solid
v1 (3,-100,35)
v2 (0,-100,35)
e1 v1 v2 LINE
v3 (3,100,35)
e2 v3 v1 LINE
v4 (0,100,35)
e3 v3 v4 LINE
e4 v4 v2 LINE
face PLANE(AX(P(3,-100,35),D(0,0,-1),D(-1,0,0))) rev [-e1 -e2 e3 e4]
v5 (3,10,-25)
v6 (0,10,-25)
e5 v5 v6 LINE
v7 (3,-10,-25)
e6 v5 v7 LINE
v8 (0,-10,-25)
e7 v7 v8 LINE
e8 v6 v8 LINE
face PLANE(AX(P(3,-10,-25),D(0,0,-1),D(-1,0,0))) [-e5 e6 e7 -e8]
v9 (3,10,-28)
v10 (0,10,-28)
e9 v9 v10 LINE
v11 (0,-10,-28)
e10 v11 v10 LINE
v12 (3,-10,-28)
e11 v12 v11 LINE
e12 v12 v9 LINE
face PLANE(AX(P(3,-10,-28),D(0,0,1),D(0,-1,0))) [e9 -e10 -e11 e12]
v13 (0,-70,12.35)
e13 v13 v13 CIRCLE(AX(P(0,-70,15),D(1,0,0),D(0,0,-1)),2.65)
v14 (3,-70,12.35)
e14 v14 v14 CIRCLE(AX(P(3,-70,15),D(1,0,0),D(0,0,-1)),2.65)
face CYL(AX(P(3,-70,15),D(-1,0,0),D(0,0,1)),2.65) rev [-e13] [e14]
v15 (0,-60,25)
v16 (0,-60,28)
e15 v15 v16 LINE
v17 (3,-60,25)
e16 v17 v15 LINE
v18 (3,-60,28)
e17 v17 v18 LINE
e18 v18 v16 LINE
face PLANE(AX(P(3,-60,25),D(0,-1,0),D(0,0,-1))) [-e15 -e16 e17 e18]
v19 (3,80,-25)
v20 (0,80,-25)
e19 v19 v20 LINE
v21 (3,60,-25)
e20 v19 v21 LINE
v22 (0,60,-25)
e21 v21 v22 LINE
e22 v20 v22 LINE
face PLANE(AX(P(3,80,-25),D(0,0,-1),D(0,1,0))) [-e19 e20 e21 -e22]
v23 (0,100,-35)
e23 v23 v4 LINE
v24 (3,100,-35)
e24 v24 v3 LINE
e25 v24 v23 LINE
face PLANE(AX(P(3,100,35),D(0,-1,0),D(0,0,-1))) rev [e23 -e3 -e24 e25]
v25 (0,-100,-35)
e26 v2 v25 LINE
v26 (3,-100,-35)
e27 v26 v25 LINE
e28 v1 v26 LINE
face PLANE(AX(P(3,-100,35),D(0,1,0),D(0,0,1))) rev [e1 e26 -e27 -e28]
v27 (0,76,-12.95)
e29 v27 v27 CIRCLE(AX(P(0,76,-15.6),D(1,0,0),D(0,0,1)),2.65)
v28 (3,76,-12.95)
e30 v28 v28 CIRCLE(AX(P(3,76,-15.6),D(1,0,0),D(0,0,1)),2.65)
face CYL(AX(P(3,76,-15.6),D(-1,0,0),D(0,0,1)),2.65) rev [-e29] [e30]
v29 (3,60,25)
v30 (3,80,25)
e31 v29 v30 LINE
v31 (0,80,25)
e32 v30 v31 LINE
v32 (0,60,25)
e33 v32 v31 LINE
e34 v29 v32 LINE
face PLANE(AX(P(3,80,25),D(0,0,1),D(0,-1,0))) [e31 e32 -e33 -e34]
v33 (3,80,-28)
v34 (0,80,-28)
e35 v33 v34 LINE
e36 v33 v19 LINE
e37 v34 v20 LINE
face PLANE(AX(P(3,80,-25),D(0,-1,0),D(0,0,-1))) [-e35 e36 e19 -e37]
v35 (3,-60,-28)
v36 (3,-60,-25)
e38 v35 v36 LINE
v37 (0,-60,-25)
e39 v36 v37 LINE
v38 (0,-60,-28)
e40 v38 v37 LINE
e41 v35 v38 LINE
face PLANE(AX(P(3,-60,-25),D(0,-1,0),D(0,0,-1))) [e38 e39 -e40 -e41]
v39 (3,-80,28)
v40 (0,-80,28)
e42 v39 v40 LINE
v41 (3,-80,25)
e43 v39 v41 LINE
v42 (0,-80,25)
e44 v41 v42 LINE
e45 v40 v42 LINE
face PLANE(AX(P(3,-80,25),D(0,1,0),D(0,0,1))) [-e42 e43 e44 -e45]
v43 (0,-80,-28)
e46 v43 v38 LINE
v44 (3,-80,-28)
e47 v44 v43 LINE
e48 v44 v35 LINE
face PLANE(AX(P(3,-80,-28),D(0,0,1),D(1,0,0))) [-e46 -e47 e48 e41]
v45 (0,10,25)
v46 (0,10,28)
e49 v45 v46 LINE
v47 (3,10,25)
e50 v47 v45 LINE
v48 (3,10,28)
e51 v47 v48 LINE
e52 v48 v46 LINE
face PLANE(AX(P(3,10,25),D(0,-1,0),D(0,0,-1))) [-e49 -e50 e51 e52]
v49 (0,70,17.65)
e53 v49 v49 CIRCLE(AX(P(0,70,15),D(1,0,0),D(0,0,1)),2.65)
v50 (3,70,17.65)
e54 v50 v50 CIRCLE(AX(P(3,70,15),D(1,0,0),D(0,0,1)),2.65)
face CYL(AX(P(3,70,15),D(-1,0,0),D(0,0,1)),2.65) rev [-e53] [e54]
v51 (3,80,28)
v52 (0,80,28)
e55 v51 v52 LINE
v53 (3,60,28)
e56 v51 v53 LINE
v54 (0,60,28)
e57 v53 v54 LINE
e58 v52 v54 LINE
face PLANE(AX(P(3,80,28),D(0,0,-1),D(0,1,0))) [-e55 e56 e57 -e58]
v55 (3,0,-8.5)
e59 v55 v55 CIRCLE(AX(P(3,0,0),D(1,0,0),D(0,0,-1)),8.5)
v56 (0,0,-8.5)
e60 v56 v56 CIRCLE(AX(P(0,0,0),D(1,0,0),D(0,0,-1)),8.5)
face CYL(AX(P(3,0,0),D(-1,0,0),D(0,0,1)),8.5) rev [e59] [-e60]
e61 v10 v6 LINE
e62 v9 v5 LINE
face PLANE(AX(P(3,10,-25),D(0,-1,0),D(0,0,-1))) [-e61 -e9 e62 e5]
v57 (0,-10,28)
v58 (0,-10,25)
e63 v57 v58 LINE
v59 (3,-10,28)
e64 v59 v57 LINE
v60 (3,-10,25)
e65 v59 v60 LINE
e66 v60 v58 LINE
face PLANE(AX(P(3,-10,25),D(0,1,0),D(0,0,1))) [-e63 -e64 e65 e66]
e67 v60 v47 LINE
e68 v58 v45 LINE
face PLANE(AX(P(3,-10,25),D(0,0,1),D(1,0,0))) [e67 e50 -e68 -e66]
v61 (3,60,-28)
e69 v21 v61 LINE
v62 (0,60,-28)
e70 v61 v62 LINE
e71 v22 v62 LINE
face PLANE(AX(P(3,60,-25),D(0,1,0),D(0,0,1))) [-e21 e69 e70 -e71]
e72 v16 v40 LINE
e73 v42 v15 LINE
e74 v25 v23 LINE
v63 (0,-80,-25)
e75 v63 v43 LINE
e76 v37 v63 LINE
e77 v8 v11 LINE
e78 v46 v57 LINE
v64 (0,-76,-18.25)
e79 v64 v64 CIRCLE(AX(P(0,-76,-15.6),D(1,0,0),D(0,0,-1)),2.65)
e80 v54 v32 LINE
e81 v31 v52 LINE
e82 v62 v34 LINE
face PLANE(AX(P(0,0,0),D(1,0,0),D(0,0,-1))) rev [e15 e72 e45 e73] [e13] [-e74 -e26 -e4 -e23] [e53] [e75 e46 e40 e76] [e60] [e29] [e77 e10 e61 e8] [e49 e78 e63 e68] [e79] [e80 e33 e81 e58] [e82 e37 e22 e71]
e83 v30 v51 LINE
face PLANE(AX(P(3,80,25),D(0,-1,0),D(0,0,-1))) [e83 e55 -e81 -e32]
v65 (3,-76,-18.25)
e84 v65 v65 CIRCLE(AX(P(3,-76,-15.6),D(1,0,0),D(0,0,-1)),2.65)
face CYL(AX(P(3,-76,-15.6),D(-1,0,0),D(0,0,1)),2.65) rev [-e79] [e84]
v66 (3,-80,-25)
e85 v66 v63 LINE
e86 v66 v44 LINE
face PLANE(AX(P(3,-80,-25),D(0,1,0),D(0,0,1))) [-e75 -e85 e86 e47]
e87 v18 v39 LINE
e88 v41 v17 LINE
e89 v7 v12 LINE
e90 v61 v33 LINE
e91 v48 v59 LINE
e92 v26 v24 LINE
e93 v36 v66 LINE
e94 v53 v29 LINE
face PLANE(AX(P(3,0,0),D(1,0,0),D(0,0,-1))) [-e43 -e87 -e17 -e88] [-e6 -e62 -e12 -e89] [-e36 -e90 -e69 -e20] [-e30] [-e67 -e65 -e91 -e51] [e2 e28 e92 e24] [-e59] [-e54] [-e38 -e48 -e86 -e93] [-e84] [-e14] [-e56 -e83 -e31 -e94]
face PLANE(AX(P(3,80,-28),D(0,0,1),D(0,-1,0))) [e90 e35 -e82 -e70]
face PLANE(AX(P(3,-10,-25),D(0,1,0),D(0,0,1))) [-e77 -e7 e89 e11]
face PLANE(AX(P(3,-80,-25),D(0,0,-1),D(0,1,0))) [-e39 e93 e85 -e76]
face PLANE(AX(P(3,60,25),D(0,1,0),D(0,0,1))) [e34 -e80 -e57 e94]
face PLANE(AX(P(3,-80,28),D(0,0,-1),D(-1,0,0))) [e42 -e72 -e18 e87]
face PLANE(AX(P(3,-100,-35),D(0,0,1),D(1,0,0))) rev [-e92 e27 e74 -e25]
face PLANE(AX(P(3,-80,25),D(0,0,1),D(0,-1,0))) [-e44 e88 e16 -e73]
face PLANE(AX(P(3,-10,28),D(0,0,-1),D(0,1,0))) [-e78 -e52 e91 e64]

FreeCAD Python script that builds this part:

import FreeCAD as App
import Part
import Sketcher

V = App.Vector
Q = App.Units.Quantity


def add_polygon(sketch, points):
    """Adds a closed chain of lines whose ends are joined by coincident constraints."""
    first, n = sketch.GeometryCount, len(points)
    for a, b in zip(points, points[1:] + points[:1]):
        sketch.addGeometry(Part.LineSegment(App.Vector(*a, 0), App.Vector(*b, 0)), False)
    for i in range(n):
        sketch.addConstraint(Sketcher.Constraint("Coincident", first + i, 2, first + (i + 1) % n, 1))

doc = App.newDocument("Part")
body = doc.addObject("PartDesign::Body", "Body")

sketch1 = body.newObject("Sketcher::SketchObject", "Sketch")
sketch1.AttachmentSupport = (doc.getObject("YZ_Plane"), [""])
sketch1.MapMode = "FlatFace"
add_polygon(sketch1, [(-100, 35), (-100, -35), (100, -35), (100, 35)])
add_polygon(sketch1, [(-60, -28), (-80, -28), (-80, -25), (-60, -25)])
sketch1.addGeometry(Part.Circle(V(-76, -15.6, 0), V(0, 0, 1), 2.65), False)
add_polygon(sketch1, [(10, -28), (-10, -28), (-10, -25), (10, -25)])
add_polygon(sketch1, [(80, -28), (60, -28), (60, -25), (80, -25)])
sketch1.addGeometry(Part.Circle(V(76, -15.6, 0), V(0, 0, 1), 2.65), False)
sketch1.addGeometry(Part.Circle(V(-70, 15, 0), V(0, 0, 1), 2.65), False)
add_polygon(sketch1, [(-60, 25), (-80, 25), (-80, 28), (-60, 28)])
sketch1.addGeometry(Part.Circle(V(0, 0, 0), V(0, 0, 1), 8.5), False)
add_polygon(sketch1, [(10, 25), (-10, 25), (-10, 28), (10, 28)])
sketch1.addGeometry(Part.Circle(V(70, 15, 0), V(0, 0, 1), 2.65), False)
add_polygon(sketch1, [(80, 25), (60, 25), (60, 28), (80, 28)])
sketch1.addConstraint(Sketcher.Constraint("Vertical", 0))
sketch1.addConstraint(Sketcher.Constraint("Horizontal", 1))
sketch1.addConstraint(Sketcher.Constraint("Vertical", 2))
sketch1.addConstraint(Sketcher.Constraint("Horizontal", 3))
sketch1.addConstraint(Sketcher.Constraint("Horizontal", 4))
sketch1.addConstraint(Sketcher.Constraint("Vertical", 5))
sketch1.addConstraint(Sketcher.Constraint("Horizontal", 6))
sketch1.addConstraint(Sketcher.Constraint("Vertical", 7))
sketch1.addConstraint(Sketcher.Constraint("Horizontal", 9))
sketch1.addConstraint(Sketcher.Constraint("Vertical", 10))
sketch1.addConstraint(Sketcher.Constraint("Horizontal", 11))
sketch1.addConstraint(Sketcher.Constraint("Vertical", 12))
sketch1.addConstraint(Sketcher.Constraint("Horizontal", 13))
sketch1.addConstraint(Sketcher.Constraint("Vertical", 14))
sketch1.addConstraint(Sketcher.Constraint("Horizontal", 15))
sketch1.addConstraint(Sketcher.Constraint("Vertical", 16))
sketch1.addConstraint(Sketcher.Constraint("Horizontal", 19))
sketch1.addConstraint(Sketcher.Constraint("Vertical", 20))
sketch1.addConstraint(Sketcher.Constraint("Horizontal", 21))
sketch1.addConstraint(Sketcher.Constraint("Vertical", 22))
sketch1.addConstraint(Sketcher.Constraint("Horizontal", 24))
sketch1.addConstraint(Sketcher.Constraint("Vertical", 25))
sketch1.addConstraint(Sketcher.Constraint("Horizontal", 26))
sketch1.addConstraint(Sketcher.Constraint("Vertical", 27))
sketch1.addConstraint(Sketcher.Constraint("Horizontal", 29))
sketch1.addConstraint(Sketcher.Constraint("Vertical", 30))
sketch1.addConstraint(Sketcher.Constraint("Horizontal", 31))
sketch1.addConstraint(Sketcher.Constraint("Vertical", 32))
sketch1.addConstraint(Sketcher.Constraint("Coincident", 23, 3, -1, 1))
sketch1.addConstraint(Sketcher.Constraint("Equal", 8, 17))
sketch1.addConstraint(Sketcher.Constraint("Equal", 17, 18))
sketch1.addConstraint(Sketcher.Constraint("Equal", 18, 28))
sketch1.addConstraint(Sketcher.Constraint("Symmetric", 0, 2, 2, 2, -1, 1))
sketch1.addConstraint(Sketcher.Constraint("Symmetric", 15, 2, 19, 2, -1, 1))
sketch1.addConstraint(Sketcher.Constraint("Symmetric", 13, 2, 21, 2, -1, 1))
sketch1.addConstraint(Sketcher.Constraint("Symmetric", 11, 2, 24, 2, -1, 1))
sketch1.addConstraint(Sketcher.Constraint("Symmetric", 9, 2, 26, 2, -1, 1))
sketch1.addConstraint(Sketcher.Constraint("Symmetric", 6, 2, 29, 2, -1, 1))
sketch1.addConstraint(Sketcher.Constraint("Symmetric", 4, 2, 31, 2, -1, 1))
sketch1.addConstraint(Sketcher.Constraint("Symmetric", 8, 3, 17, 3, -2))
sketch1.addConstraint(Sketcher.Constraint("Symmetric", 18, 3, 28, 3, -2))
sketch1.addConstraint(Sketcher.Constraint("Symmetric", 7, 2, 13, 2, -2))
sketch1.addConstraint(Sketcher.Constraint("Symmetric", 5, 2, 15, 2, -2))
sketch1.addConstraint(Sketcher.Constraint("Horizontal", 7, 2, 9, 2))
sketch1.addConstraint(Sketcher.Constraint("Horizontal", 6, 2, 10, 2))
sketch1.addConstraint(Sketcher.Constraint("Vertical", 10, 2, 24, 2))
sketch1.addConstraint(Sketcher.Constraint("Equal", 6, 9))
sketch1.addConstraint(Sketcher.Constraint("Diameter", 23, Q("17 mm")))
sketch1.addConstraint(Sketcher.Constraint("Diameter", 8, Q("5.3 mm")))
sketch1.addConstraint(Sketcher.Constraint("DistanceX", 1, 1, 1, 2, Q("200 mm")))
sketch1.addConstraint(Sketcher.Constraint("DistanceX", 4, 2, 4, 1, Q("20 mm")))
sketch1.addConstraint(Sketcher.Constraint("DistanceY", 0, 2, 0, 1, Q("70 mm")))
sketch1.addConstraint(Sketcher.Constraint("DistanceY", 5, 1, 5, 2, Q("3 mm")))
sketch1.addConstraint(Sketcher.Constraint("DistanceX", 8, 3, -1, 1, Q("76 mm")))
sketch1.addConstraint(Sketcher.Constraint("DistanceX", 18, 3, -1, 1, Q("70 mm")))
sketch1.addConstraint(Sketcher.Constraint("DistanceY", -1, 1, 18, 3, Q("15 mm")))
sketch1.addConstraint(Sketcher.Constraint("DistanceX", 4, 2, -1, 1, Q("80 mm")))
sketch1.addConstraint(Sketcher.Constraint("DistanceY", 4, 2, -1, 1, Q("28 mm")))
sketch1.addConstraint(Sketcher.Constraint("DistanceY", 8, 3, -1, 1, Q("15.6 mm")))
pad1 = body.newObject("PartDesign::Pad", "Pad")
pad1.Profile = sketch1
pad1.Length = 3

doc.recompute()
